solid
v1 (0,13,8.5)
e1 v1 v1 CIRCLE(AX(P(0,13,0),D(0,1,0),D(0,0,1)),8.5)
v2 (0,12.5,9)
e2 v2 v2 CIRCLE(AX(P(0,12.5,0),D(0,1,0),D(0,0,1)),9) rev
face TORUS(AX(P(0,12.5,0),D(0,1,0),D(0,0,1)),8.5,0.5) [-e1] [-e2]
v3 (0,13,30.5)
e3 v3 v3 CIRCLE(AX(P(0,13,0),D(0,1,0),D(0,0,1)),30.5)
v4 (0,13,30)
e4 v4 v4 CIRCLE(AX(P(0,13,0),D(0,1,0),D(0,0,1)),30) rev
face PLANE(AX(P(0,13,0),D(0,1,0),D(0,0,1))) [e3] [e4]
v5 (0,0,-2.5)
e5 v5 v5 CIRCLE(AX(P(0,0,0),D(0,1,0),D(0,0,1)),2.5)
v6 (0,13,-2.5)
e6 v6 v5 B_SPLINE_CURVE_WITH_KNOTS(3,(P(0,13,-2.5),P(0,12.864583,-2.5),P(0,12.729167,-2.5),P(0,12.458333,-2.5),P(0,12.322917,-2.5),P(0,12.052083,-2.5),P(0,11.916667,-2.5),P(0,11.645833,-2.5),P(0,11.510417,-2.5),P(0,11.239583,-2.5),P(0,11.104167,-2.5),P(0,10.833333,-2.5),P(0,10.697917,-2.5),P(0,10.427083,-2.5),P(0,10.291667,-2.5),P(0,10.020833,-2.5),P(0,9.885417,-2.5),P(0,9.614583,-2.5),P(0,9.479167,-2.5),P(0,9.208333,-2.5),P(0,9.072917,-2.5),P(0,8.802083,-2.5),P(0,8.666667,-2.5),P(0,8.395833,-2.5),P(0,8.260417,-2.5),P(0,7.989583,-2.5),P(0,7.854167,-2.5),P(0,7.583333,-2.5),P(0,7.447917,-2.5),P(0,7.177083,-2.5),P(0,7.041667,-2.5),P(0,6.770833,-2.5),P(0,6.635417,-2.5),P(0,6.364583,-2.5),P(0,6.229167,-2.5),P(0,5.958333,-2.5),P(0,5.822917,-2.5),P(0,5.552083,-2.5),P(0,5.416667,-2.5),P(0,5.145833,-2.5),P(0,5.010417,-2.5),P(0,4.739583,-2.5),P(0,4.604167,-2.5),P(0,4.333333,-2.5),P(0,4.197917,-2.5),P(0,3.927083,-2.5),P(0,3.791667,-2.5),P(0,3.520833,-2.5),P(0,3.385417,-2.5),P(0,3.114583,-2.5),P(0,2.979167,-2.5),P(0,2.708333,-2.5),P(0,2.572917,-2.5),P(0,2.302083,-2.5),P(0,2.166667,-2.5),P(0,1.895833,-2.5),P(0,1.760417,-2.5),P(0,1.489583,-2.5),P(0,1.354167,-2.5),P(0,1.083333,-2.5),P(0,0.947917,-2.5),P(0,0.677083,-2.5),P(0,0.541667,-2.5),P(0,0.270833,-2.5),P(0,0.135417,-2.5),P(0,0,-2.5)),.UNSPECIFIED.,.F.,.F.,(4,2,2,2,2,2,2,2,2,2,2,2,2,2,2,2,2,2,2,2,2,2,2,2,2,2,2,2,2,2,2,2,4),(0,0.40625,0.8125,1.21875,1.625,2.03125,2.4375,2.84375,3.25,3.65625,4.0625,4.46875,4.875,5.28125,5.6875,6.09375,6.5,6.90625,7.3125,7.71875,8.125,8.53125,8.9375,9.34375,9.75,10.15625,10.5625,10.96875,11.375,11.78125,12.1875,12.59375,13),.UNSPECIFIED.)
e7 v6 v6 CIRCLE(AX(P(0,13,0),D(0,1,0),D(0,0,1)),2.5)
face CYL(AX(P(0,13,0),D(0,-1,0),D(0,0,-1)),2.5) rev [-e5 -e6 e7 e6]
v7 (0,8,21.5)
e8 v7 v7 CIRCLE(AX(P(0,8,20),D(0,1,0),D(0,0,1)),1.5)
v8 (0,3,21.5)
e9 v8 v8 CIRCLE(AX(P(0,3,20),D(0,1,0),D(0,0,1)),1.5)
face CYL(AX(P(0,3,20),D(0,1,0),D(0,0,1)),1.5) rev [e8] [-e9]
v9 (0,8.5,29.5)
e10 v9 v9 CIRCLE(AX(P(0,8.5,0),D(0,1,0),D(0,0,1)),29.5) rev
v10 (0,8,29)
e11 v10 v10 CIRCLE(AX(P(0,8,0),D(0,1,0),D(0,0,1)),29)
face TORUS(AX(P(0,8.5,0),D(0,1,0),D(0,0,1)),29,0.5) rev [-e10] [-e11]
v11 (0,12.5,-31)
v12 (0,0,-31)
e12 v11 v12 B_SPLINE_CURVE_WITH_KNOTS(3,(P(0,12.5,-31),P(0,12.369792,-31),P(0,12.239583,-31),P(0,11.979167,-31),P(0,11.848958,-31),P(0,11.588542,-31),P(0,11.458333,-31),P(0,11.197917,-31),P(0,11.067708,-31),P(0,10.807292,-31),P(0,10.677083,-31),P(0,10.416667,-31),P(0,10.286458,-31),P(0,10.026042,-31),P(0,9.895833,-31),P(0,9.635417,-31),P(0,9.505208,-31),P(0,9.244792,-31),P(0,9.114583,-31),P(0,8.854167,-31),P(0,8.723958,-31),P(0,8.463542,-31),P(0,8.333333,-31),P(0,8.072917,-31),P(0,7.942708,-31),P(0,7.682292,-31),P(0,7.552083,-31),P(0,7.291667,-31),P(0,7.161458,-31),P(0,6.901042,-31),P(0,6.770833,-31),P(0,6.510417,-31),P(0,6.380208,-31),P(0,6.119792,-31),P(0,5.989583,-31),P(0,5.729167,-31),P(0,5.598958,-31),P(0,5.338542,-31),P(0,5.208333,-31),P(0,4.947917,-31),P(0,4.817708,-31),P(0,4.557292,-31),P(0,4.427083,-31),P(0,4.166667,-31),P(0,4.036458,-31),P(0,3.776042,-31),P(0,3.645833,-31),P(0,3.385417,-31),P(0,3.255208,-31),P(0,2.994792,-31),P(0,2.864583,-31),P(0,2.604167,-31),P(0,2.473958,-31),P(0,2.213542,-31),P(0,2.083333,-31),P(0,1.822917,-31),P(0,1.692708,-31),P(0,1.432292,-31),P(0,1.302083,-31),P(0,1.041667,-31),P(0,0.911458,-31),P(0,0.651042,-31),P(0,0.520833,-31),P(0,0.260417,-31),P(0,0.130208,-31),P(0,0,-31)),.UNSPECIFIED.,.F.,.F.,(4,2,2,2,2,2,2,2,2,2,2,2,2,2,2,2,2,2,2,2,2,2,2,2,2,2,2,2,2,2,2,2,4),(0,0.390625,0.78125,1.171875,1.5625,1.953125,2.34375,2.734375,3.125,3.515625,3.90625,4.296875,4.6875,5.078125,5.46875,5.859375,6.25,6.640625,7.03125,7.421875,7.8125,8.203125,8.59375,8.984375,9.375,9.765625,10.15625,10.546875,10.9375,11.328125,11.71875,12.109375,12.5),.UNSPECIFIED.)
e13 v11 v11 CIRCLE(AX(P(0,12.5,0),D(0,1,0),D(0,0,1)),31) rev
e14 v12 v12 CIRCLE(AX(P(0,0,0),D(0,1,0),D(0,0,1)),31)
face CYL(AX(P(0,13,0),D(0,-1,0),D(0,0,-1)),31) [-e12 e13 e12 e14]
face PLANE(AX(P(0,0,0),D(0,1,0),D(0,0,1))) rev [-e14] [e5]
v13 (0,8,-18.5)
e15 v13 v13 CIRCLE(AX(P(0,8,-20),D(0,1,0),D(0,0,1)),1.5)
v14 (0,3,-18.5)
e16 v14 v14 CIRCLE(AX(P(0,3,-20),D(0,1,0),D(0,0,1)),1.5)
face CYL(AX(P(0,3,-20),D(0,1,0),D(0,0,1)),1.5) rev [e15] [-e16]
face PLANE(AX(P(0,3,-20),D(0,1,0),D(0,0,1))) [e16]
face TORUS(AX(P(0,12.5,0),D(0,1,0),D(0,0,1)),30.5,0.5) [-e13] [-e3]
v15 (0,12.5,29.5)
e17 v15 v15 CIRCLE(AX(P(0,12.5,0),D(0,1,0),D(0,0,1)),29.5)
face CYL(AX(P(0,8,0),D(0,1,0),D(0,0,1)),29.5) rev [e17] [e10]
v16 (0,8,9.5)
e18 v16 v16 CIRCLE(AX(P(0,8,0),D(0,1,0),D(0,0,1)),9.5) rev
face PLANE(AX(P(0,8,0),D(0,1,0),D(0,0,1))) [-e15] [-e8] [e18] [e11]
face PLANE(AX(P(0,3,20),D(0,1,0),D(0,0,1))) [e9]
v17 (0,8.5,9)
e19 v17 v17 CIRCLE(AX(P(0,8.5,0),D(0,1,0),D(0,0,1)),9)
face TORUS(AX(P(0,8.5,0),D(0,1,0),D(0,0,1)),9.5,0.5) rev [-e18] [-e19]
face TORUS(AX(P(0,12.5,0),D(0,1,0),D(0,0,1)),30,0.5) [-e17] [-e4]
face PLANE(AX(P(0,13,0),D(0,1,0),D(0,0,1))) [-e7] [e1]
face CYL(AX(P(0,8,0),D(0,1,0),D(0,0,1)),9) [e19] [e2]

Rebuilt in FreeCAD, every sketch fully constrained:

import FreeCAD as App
import Part
import Sketcher
from FreeCAD import Vector
Q = App.Units.Quantity


def edges_at(feature, points):
    """Names of the edges that pass closest to the given points."""
    edges = feature.Shape.Edges
    near = lambda p: min(range(len(edges)), key=lambda i: edges[i].distToShape(Part.Vertex(*p))[0])
    return sorted({f"Edge{near(p) + 1}" for p in points})

doc = App.newDocument("Part")
body = doc.addObject("PartDesign::Body", "Body")

# Sketch on XZ plane
sketch1 = body.newObject("Sketcher::SketchObject", "Sketch")
sketch1.AttachmentSupport = (doc.getObject("XZ_Plane"), [""])
sketch1.MapMode = "FlatFace"
sketch1.addGeometry(Part.Circle(Vector(0, 0, 0), Vector(0, 0, 1), 31), False)
sketch1.addGeometry(Part.Circle(Vector(0, 0, 0), Vector(0, 0, 1), 2.5), False)
sketch1.addConstraint(Sketcher.Constraint("Coincident", 0, 3, -1, 1))
sketch1.addConstraint(Sketcher.Constraint("Coincident", 1, 3, -1, 1))
sketch1.addConstraint(Sketcher.Constraint("Diameter", 0, Q("62 mm")))
sketch1.addConstraint(Sketcher.Constraint("Diameter", 1, Q("5 mm")))
pad1 = body.newObject("PartDesign::Pad", "Pad")
pad1.Profile = sketch1
pad1.Length = 13
pad1.Reversed = True

# Sketch on XZ plane
sketch2 = body.newObject("Sketcher::SketchObject", "Sketch001")
sketch2.AttachmentSupport = (doc.getObject("XZ_Plane"), [""])
sketch2.MapMode = "FlatFace"
sketch2.AttachmentOffset = App.Placement(Vector(0, 0, -13), App.Rotation())
sketch2.addGeometry(Part.Circle(Vector(0, 0, 0), Vector(0, 0, 1), 30), False)
sketch2.addGeometry(Part.Circle(Vector(0, 0, 0), Vector(0, 0, 1), 9), False)
sketch2.addConstraint(Sketcher.Constraint("Coincident", 0, 3, -1, 1))
sketch2.addConstraint(Sketcher.Constraint("Coincident", 1, 3, -1, 1))
sketch2.addConstraint(Sketcher.Constraint("Diameter", 0, Q("59 mm")))
sketch2.addConstraint(Sketcher.Constraint("Diameter", 1, Q("18 mm")))
pocket1 = body.newObject("PartDesign::Pocket", "Pocket")
pocket1.Profile = sketch2
pocket1.Length = 5
pocket1.Reversed = True
doc.recompute()

fillet = body.newObject("PartDesign::Fillet", "Fillet")
fillet.Base = (pocket1, edges_at(pocket1, [
    (0, 8, -29.5),
    (0, 8, -9),
    (0, 13, -29.5),
    (0, 13, -9),
    (0, 13, 31),
]))
fillet.Radius = 0.5

# Sketch on XZ plane
sketch3 = body.newObject("Sketcher::SketchObject", "Sketch002")
sketch3.AttachmentSupport = (doc.getObject("XZ_Plane"), [""])
sketch3.MapMode = "FlatFace"
sketch3.AttachmentOffset = App.Placement(Vector(0, 0, -8), App.Rotation())
sketch3.addGeometry(Part.Circle(Vector(0, -20, 0), Vector(0, 0, 1), 1.5), False)
sketch3.addGeometry(Part.Circle(Vector(0, 20, 0), Vector(0, 0, 1), 1.5), False)
sketch3.addConstraint(Sketcher.Constraint("Equal", 0, 1))
sketch3.addConstraint(Sketcher.Constraint("Symmetric", 0, 3, 1, 3, -1, 1))
sketch3.addConstraint(Sketcher.Constraint("PointOnObject", 0, 3, -2))
sketch3.addConstraint(Sketcher.Constraint("Diameter", 0, Q("3 mm")))
sketch3.addConstraint(Sketcher.Constraint("DistanceY", 0, 3, -1, 1, Q("20 mm")))
pocket2 = body.newObject("PartDesign::Pocket", "Pocket001")
pocket2.Profile = sketch3
pocket2.Length = 5
pocket2.Reversed = True

doc.recompute()
